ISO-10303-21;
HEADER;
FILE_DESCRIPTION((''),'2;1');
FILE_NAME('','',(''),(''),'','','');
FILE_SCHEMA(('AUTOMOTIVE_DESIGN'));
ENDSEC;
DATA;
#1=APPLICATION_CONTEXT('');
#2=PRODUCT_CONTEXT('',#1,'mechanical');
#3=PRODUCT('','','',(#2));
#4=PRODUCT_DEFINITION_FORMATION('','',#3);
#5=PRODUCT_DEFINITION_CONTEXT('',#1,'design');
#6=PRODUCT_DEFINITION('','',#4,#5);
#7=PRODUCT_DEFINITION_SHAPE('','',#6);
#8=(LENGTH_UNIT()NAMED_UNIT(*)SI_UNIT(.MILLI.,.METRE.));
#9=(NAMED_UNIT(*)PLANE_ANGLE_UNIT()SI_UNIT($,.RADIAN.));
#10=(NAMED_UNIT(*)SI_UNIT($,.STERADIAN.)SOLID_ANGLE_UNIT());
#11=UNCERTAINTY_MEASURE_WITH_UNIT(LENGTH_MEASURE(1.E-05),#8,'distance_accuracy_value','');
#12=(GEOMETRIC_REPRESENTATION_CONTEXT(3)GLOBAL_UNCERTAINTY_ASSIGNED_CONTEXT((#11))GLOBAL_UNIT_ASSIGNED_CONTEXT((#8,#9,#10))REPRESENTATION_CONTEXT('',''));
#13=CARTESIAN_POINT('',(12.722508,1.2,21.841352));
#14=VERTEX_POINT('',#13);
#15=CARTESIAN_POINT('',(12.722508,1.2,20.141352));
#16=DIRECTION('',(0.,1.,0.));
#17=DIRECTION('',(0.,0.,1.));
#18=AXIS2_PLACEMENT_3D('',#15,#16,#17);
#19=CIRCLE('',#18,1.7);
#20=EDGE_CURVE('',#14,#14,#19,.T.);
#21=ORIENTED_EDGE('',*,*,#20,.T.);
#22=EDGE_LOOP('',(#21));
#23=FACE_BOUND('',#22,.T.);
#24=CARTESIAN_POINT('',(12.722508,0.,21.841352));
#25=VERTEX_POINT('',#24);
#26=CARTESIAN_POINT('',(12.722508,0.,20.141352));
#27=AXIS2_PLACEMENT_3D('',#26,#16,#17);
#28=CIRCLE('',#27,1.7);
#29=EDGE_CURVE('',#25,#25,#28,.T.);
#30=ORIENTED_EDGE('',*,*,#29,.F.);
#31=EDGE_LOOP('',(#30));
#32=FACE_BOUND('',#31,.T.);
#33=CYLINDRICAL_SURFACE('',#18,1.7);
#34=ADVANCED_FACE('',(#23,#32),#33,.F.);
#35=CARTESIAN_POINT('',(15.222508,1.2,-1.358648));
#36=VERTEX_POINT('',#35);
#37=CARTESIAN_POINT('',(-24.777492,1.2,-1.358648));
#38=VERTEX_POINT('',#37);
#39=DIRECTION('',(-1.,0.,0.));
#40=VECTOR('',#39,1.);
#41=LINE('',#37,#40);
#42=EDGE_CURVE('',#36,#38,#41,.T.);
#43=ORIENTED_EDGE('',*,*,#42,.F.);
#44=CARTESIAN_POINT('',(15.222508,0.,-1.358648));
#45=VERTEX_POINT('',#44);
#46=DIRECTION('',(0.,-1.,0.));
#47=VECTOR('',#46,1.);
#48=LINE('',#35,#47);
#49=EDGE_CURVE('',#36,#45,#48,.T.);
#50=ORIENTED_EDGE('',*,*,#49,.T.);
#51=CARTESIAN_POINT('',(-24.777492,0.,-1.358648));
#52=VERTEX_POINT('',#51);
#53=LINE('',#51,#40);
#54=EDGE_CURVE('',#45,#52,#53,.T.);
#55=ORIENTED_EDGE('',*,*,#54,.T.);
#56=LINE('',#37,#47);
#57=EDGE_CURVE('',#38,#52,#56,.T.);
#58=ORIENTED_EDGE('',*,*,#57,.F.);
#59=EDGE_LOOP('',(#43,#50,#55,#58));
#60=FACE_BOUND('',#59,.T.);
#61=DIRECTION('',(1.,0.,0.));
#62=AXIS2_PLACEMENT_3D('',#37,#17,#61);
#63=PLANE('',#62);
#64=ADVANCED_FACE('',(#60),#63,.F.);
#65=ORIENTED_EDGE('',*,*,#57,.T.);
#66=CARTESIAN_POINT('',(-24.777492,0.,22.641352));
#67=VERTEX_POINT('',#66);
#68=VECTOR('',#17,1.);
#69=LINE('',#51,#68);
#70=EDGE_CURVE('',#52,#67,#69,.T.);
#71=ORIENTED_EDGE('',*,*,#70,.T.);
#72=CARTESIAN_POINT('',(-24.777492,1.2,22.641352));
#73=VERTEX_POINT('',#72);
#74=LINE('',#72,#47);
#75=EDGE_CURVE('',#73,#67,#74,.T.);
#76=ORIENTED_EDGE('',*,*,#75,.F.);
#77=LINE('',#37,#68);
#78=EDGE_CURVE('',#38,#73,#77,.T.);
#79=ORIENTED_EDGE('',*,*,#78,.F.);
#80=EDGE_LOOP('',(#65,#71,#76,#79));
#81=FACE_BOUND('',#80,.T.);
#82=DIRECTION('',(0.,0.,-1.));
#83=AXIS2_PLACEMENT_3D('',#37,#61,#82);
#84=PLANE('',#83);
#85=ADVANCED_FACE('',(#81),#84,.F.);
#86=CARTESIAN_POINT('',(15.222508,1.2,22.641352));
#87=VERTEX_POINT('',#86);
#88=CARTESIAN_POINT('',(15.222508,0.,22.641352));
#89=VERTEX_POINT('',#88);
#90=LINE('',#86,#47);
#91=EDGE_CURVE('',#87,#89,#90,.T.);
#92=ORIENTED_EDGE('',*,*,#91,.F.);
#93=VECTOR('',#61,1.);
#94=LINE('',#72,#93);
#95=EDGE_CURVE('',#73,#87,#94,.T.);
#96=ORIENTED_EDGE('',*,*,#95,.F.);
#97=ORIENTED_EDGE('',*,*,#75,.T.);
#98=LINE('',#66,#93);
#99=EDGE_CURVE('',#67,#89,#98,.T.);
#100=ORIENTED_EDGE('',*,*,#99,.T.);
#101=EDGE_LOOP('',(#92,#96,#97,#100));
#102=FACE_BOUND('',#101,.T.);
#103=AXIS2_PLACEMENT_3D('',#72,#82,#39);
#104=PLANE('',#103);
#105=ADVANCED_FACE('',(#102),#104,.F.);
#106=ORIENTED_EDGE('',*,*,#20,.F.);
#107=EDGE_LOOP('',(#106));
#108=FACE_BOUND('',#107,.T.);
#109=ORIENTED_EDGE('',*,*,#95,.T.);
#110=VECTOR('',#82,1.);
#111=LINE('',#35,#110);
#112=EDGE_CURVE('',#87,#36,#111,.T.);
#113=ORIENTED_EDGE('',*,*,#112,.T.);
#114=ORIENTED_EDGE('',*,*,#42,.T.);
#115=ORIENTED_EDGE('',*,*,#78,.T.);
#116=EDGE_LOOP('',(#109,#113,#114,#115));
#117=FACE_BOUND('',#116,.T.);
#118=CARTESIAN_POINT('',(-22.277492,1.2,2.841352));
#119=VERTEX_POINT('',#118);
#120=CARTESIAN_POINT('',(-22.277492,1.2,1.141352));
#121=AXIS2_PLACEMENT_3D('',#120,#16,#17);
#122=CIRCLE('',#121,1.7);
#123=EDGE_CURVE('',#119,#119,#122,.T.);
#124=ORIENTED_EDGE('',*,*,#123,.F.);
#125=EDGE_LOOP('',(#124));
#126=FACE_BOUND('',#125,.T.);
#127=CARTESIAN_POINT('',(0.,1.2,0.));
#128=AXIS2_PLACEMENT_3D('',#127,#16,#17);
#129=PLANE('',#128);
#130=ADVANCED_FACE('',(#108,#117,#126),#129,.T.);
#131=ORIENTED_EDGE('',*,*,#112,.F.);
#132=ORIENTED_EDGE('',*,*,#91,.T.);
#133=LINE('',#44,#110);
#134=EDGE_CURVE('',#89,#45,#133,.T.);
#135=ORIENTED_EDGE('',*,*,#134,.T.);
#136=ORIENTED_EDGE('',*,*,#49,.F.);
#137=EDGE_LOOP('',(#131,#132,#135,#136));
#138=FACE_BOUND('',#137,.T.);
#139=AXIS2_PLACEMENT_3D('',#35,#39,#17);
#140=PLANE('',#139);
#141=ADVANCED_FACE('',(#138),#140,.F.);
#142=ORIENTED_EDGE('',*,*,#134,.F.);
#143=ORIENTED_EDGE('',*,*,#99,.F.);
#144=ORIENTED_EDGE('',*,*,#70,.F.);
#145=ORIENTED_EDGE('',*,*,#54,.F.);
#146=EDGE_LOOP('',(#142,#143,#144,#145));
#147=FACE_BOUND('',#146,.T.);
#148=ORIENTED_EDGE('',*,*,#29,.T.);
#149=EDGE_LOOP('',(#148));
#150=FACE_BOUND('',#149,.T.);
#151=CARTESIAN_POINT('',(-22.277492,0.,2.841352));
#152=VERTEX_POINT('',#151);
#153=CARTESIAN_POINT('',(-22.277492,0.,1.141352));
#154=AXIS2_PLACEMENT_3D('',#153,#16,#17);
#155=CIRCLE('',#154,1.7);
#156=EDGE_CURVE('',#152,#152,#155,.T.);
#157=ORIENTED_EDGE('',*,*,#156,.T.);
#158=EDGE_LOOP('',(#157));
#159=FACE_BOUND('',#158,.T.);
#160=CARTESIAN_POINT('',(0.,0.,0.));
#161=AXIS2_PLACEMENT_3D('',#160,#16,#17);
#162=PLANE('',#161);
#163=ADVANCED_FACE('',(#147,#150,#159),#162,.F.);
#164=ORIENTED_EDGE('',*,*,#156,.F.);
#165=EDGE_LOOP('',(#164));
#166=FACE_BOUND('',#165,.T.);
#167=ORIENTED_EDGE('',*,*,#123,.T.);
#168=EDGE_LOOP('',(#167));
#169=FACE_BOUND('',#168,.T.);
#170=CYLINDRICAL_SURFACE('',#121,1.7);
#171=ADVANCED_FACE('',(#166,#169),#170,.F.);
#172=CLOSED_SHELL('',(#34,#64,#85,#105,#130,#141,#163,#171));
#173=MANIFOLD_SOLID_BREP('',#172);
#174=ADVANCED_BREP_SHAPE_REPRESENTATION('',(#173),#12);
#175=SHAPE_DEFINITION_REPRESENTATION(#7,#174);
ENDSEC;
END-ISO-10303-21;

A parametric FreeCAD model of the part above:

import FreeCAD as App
import Part
import Sketcher


def add_polygon(sketch, points):
    """Adds a closed chain of lines whose ends are joined by coincident constraints."""
    first, n = sketch.GeometryCount, len(points)
    for a, b in zip(points, points[1:] + points[:1]):
        sketch.addGeometry(Part.LineSegment(App.Vector(*a, 0), App.Vector(*b, 0)), False)
    for i in range(n):
        sketch.addConstraint(Sketcher.Constraint("Coincident", first + i, 2, first + (i + 1) % n, 1))

doc = App.newDocument("Part")
body = doc.addObject("PartDesign::Body", "Body")

sketch1 = body.newObject("Sketcher::SketchObject", "Sketch")
sketch1.AttachmentSupport = (doc.getObject("XZ_Plane"), [""])
sketch1.MapMode = "FlatFace"
add_polygon(sketch1, [(-24.777492, -1.358648), (-24.777492, 22.641352), (15.222508, 22.641352), (15.222508, -1.358648)])
sketch1.addConstraint([
    Sketcher.Constraint("Vertical", 0),
    Sketcher.Constraint("Horizontal", 1),
    Sketcher.Constraint("Vertical", 2),
    Sketcher.Constraint("Horizontal", 3),
    Sketcher.Constraint("DistanceX", 1, 1, 1, 2, 40.0),
    Sketcher.Constraint("DistanceY", 0, 1, 0, 2, 24.0),
    Sketcher.Constraint("DistanceX", 0, 2, -1, 1, 24.777492),
    Sketcher.Constraint("DistanceY", -1, 1, 0, 2, 22.641352),
])
pad1 = body.newObject("PartDesign::Pad", "Pad")
pad1.Profile = sketch1
pad1.Length = 1.2
pad1.Reversed = True

sketch2 = body.newObject("Sketcher::SketchObject", "Sketch001")
sketch2.AttachmentSupport = (doc.getObject("XZ_Plane"), [""])
sketch2.MapMode = "FlatFace"
sketch2.AttachmentOffset = App.Placement(App.Vector(0, 0, -1.2), App.Rotation())
sketch2.addGeometry([
    Part.Circle(App.Vector(-22.277492, 1.141352, 0), App.Vector(0, 0, 1), 1.7),
    Part.Circle(App.Vector(12.722508, 20.141352, 0), App.Vector(0, 0, 1), 1.7),
], False)
sketch2.addConstraint([
    Sketcher.Constraint("Equal", 0, 1),
    Sketcher.Constraint("Diameter", 0, 3.4),
    Sketcher.Constraint("DistanceX", 0, 3, 1, 3, 35.0),
    Sketcher.Constraint("DistanceY", 0, 3, 1, 3, 19.0),
    Sketcher.Constraint("DistanceX", 0, 3, -1, 1, 22.277492),
    Sketcher.Constraint("DistanceY", -1, 1, 0, 3, 1.141352),
])
doc.recompute()
hole = body.newObject("PartDesign::Hole", "Hole")
hole.Profile = sketch2
hole.ThreadType = "None"
hole.Diameter = 3.4
hole.DepthType = "ThroughAll"
hole.Reversed = True

doc.recompute()
